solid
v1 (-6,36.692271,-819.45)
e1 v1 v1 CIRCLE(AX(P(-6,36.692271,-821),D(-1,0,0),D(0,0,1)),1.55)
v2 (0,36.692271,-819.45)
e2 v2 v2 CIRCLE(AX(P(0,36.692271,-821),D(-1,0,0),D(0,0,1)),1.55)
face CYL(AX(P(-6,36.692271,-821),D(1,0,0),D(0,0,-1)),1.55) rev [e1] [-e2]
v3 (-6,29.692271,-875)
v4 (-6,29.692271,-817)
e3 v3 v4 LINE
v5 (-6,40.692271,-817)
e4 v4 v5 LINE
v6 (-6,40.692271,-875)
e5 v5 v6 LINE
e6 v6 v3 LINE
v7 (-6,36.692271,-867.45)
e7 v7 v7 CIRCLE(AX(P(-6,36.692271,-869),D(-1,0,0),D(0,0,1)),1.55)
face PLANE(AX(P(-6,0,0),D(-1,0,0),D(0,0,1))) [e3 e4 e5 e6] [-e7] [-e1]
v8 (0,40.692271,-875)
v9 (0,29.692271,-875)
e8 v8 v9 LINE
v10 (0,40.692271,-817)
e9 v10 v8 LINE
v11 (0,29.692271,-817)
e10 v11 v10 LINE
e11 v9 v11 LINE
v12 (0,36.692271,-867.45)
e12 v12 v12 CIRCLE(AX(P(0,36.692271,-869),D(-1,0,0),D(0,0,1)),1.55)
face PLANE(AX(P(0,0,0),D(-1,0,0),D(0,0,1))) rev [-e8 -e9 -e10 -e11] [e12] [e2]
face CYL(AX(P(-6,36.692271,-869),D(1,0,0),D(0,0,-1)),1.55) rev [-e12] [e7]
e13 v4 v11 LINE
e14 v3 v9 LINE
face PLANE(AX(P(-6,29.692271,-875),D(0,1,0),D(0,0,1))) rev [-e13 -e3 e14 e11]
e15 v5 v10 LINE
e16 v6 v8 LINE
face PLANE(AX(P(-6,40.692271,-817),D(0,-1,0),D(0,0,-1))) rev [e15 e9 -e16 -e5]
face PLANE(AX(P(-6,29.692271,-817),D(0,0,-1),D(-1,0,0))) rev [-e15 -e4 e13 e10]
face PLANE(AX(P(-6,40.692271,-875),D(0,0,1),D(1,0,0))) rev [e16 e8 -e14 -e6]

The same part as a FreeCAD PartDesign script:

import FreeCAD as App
import Part
import Sketcher
Q = App.Units.Quantity

doc = App.newDocument("Part")
body = doc.addObject("PartDesign::Body", "Body")

sketch1 = body.newObject("Sketcher::SketchObject", "Sketch")
sketch1.AttachmentSupport = (doc.getObject("YZ_Plane"), [""])
sketch1.MapMode = "FlatFace"
sketch1.addGeometry([
    Part.LineSegment(App.Vector(40.692271, -875, 0), App.Vector(29.692271, -875, 0)),
    Part.LineSegment(App.Vector(29.692271, -875, 0), App.Vector(29.692271, -817, 0)),
    Part.LineSegment(App.Vector(29.692271, -817, 0), App.Vector(40.692271, -817, 0)),
    Part.LineSegment(App.Vector(40.692271, -817, 0), App.Vector(40.692271, -875, 0)),
    Part.Circle(App.Vector(36.692271, -869, 0), App.Vector(0, 0, 1), 1.55),
    Part.Circle(App.Vector(36.692271, -821, 0), App.Vector(0, 0, 1), 1.55),
], False)
sketch1.addConstraint([
    Sketcher.Constraint("Coincident", 0, 2, 1, 1),
    Sketcher.Constraint("Coincident", 1, 2, 2, 1),
    Sketcher.Constraint("Coincident", 2, 2, 3, 1),
    Sketcher.Constraint("Coincident", 3, 2, 0, 1),
    Sketcher.Constraint("Horizontal", 0),
    Sketcher.Constraint("Vertical", 1),
    Sketcher.Constraint("Horizontal", 2),
    Sketcher.Constraint("Vertical", 3),
    Sketcher.Constraint("Equal", 4, 5),
    Sketcher.Constraint("Vertical", 4, 3, 5, 3),
    Sketcher.Constraint("Diameter", 4, Q("3.1 mm")),
    Sketcher.Constraint("DistanceX", 0, 2, 0, 1, Q("11 mm")),
    Sketcher.Constraint("DistanceY", 1, 1, 1, 2, Q("58 mm")),
    Sketcher.Constraint("DistanceY", 4, 3, -1, 1, Q("869 mm")),
    Sketcher.Constraint("DistanceY", 5, 3, -1, 1, Q("821 mm")),
    Sketcher.Constraint("DistanceY", 0, 2, -1, 1, Q("875 mm")),
    Sketcher.Constraint("DistanceX", 0, 2, 4, 3, Q("7 mm")),
    Sketcher.Constraint("DistanceX", -1, 1, 4, 3, Q("36.692271 mm")),
])
pad1 = body.newObject("PartDesign::Pad", "Pad")
pad1.Profile = sketch1
pad1.Length = 6
pad1.Reversed = True

doc.recompute()
